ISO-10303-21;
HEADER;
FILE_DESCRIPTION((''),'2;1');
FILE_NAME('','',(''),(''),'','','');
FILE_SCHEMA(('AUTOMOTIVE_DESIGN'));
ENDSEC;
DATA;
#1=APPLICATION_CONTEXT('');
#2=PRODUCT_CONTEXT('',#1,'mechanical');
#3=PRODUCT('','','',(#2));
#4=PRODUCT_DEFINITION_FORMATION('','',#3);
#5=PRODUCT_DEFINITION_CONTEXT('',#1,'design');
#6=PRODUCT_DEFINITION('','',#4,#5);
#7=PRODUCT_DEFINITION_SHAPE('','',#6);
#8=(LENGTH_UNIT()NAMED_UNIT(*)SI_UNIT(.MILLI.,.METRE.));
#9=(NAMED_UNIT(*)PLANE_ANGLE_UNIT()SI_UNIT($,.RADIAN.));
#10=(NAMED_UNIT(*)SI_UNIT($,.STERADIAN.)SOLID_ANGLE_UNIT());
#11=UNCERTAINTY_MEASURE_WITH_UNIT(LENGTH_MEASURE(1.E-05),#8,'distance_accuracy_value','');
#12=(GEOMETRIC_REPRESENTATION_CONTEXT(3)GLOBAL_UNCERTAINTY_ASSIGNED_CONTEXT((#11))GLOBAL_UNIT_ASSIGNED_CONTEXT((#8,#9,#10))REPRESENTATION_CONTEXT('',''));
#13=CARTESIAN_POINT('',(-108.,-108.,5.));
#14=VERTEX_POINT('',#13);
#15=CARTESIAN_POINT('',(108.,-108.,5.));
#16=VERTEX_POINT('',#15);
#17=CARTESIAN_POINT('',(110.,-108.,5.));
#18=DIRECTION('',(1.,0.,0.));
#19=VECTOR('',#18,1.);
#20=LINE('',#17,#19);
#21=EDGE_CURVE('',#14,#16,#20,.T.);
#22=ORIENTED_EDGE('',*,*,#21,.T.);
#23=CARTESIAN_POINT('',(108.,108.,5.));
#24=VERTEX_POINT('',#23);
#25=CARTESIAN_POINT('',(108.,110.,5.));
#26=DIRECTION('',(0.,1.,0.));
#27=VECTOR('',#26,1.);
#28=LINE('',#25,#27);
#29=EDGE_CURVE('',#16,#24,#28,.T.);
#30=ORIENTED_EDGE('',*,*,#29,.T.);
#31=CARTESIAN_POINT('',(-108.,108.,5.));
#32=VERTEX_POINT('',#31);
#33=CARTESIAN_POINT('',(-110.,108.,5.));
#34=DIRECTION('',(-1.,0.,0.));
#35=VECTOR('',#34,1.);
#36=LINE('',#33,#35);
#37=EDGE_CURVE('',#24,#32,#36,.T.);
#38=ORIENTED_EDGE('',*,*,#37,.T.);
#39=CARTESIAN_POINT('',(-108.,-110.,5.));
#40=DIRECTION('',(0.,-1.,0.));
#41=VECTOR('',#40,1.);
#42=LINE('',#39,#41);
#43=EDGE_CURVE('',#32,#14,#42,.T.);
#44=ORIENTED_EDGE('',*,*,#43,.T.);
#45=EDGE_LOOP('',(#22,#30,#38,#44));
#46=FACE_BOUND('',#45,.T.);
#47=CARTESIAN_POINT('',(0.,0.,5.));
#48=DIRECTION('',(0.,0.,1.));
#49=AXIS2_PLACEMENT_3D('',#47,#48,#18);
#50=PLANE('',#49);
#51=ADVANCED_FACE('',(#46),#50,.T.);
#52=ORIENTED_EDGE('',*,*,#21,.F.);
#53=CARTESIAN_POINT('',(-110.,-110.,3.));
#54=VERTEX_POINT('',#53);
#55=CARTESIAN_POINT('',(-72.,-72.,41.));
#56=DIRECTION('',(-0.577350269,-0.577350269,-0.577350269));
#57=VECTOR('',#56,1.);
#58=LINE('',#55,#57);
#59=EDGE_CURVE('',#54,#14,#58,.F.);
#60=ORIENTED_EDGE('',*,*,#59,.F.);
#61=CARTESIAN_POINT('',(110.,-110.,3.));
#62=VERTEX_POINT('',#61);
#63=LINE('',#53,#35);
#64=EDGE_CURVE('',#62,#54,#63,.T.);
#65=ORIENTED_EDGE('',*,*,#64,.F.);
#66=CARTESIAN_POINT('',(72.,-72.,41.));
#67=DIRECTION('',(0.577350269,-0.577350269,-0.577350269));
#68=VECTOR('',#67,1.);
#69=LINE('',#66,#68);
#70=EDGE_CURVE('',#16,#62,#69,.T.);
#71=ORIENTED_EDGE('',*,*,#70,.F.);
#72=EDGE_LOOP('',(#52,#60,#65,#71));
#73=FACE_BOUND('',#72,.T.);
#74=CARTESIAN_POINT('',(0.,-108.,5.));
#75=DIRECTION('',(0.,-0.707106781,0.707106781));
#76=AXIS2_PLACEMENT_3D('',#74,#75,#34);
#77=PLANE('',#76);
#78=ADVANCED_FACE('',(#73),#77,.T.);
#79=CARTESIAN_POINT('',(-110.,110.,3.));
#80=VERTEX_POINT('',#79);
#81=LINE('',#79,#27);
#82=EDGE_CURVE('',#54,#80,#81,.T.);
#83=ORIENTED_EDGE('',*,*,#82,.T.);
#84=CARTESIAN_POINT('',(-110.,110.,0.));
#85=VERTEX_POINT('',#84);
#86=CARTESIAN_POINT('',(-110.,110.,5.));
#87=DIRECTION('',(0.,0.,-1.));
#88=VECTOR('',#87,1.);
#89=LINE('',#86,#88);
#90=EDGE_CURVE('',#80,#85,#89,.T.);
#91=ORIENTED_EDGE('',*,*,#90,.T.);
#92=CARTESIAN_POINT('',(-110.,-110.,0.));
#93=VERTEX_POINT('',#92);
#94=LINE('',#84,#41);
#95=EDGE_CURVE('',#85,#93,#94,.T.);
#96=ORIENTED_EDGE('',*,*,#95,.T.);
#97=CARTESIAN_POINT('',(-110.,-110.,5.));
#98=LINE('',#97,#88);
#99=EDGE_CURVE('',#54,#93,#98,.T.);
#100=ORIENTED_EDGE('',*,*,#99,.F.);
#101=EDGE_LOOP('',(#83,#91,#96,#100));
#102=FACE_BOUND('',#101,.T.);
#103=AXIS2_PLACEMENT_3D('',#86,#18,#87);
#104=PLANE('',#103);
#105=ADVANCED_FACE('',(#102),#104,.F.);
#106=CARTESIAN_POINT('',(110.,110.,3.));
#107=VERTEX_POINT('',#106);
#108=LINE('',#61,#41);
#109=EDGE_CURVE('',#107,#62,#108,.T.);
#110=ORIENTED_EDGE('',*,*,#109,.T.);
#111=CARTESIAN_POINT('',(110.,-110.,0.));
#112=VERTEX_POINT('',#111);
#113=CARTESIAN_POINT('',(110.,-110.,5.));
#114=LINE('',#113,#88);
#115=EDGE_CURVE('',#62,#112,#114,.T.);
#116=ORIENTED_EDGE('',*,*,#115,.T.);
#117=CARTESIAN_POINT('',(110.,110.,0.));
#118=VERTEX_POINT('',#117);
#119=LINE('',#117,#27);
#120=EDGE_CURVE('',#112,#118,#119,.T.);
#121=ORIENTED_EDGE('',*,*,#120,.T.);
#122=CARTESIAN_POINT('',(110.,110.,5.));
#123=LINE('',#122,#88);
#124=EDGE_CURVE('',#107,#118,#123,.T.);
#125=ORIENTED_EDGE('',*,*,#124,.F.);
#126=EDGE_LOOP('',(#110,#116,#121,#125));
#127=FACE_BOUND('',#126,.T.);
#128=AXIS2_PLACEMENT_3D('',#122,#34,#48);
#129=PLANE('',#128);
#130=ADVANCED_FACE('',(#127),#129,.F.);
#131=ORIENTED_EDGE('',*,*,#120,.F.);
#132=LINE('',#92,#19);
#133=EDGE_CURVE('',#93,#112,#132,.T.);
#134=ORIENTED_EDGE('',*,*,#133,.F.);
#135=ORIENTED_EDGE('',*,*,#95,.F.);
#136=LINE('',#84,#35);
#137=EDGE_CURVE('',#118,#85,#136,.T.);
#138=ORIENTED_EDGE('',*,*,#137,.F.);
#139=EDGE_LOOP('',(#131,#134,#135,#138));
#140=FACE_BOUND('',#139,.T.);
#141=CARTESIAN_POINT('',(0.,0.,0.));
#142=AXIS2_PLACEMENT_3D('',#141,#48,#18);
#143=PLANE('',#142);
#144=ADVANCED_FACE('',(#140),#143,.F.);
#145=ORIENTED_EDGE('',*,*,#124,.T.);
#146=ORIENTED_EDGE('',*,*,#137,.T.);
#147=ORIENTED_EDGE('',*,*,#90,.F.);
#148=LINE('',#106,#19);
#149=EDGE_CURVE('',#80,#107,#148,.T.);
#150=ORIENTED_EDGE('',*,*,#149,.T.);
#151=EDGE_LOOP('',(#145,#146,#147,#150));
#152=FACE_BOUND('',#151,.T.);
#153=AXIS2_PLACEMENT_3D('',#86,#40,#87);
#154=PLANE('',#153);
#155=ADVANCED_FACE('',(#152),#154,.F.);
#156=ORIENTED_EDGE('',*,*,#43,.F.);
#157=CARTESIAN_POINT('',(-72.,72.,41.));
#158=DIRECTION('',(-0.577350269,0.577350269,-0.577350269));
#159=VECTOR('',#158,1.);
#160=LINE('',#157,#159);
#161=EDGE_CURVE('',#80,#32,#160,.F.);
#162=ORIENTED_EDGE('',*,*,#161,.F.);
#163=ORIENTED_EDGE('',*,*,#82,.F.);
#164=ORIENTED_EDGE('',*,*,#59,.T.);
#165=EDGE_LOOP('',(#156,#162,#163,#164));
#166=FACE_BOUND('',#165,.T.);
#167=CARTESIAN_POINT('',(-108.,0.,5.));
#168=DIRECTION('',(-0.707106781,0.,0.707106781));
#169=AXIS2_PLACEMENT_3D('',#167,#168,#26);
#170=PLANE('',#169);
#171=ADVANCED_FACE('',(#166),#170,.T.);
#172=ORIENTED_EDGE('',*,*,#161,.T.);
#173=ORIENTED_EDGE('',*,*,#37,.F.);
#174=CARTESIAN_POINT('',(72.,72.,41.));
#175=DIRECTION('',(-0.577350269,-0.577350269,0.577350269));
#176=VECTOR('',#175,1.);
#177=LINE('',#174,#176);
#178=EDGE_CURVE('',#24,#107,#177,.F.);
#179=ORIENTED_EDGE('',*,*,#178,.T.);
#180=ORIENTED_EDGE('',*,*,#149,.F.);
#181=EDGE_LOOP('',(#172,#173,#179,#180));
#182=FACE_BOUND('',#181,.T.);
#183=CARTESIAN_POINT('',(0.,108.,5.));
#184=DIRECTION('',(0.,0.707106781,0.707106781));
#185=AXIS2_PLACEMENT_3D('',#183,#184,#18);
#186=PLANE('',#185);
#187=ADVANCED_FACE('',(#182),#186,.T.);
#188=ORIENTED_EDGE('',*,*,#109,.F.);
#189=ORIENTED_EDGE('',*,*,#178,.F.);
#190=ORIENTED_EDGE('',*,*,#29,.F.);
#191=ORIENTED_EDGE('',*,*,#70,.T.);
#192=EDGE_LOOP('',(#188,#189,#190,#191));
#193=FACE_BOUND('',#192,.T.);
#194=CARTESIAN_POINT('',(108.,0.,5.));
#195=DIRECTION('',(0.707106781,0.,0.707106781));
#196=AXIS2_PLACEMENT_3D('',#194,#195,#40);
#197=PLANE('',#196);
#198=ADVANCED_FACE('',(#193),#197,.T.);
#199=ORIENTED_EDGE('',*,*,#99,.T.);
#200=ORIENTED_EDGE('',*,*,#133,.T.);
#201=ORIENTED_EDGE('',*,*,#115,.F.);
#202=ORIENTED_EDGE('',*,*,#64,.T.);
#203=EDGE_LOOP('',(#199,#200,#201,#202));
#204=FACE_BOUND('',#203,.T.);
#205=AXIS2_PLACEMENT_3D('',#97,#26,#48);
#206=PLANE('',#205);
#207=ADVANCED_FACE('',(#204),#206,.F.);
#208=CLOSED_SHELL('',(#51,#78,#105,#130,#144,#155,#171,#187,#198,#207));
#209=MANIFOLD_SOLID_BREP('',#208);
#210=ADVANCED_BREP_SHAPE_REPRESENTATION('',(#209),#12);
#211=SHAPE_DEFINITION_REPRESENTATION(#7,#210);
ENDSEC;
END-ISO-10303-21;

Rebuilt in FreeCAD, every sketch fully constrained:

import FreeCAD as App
import Part
import Sketcher
from FreeCAD import Vector


def edges_at(feature, points):
    """Names of the edges that pass closest to the given points."""
    edges = feature.Shape.Edges
    near = lambda p: min(range(len(edges)), key=lambda i: edges[i].distToShape(Part.Vertex(*p))[0])
    return sorted({f"Edge{near(p) + 1}" for p in points})

doc = App.newDocument("Part")
body = doc.addObject("PartDesign::Body", "Body")

sketch1 = doc.addObject("Sketcher::SketchObject", "Sketch")
body.addObject(sketch1)
sketch1.AttachmentSupport = (doc.XY_Plane, [""])
sketch1.MapMode = "FlatFace"
sketch1.addGeometry(Part.LineSegment(Vector(-110, 110, 0), Vector(-110, -110, 0)), False)
sketch1.addGeometry(Part.LineSegment(Vector(-110, -110, 0), Vector(110, -110, 0)), False)
sketch1.addGeometry(Part.LineSegment(Vector(110, -110, 0), Vector(110, 110, 0)), False)
sketch1.addGeometry(Part.LineSegment(Vector(110, 110, 0), Vector(-110, 110, 0)), False)
sketch1.addConstraint(Sketcher.Constraint("Coincident", 0, 2, 1, 1))
sketch1.addConstraint(Sketcher.Constraint("Coincident", 1, 2, 2, 1))
sketch1.addConstraint(Sketcher.Constraint("Coincident", 2, 2, 3, 1))
sketch1.addConstraint(Sketcher.Constraint("Coincident", 3, 2, 0, 1))
sketch1.addConstraint(Sketcher.Constraint("Vertical", 0))
sketch1.addConstraint(Sketcher.Constraint("Horizontal", 1))
sketch1.addConstraint(Sketcher.Constraint("Vertical", 2))
sketch1.addConstraint(Sketcher.Constraint("Horizontal", 3))
sketch1.addConstraint(Sketcher.Constraint("Symmetric", 0, 2, 2, 2, -1, 1))
sketch1.addConstraint(Sketcher.Constraint("Equal", 3, 0))
sketch1.addConstraint(Sketcher.Constraint("DistanceX", 1, 1, 1, 2, 220.0))
pad1 = doc.addObject("PartDesign::Pad", "Pad")
body.addObject(pad1)
pad1.Profile = sketch1
pad1.Length = 5
doc.recompute()

chamfer = doc.addObject("PartDesign::Chamfer", "Chamfer")
body.addObject(chamfer)
chamfer.Base = (pad1, edges_at(pad1, [
    (-110, 0, 5),
    (0, -110, 5),
    (110, 0, 5),
    (0, 110, 5),
]))
chamfer.Size = 2

doc.recompute()
